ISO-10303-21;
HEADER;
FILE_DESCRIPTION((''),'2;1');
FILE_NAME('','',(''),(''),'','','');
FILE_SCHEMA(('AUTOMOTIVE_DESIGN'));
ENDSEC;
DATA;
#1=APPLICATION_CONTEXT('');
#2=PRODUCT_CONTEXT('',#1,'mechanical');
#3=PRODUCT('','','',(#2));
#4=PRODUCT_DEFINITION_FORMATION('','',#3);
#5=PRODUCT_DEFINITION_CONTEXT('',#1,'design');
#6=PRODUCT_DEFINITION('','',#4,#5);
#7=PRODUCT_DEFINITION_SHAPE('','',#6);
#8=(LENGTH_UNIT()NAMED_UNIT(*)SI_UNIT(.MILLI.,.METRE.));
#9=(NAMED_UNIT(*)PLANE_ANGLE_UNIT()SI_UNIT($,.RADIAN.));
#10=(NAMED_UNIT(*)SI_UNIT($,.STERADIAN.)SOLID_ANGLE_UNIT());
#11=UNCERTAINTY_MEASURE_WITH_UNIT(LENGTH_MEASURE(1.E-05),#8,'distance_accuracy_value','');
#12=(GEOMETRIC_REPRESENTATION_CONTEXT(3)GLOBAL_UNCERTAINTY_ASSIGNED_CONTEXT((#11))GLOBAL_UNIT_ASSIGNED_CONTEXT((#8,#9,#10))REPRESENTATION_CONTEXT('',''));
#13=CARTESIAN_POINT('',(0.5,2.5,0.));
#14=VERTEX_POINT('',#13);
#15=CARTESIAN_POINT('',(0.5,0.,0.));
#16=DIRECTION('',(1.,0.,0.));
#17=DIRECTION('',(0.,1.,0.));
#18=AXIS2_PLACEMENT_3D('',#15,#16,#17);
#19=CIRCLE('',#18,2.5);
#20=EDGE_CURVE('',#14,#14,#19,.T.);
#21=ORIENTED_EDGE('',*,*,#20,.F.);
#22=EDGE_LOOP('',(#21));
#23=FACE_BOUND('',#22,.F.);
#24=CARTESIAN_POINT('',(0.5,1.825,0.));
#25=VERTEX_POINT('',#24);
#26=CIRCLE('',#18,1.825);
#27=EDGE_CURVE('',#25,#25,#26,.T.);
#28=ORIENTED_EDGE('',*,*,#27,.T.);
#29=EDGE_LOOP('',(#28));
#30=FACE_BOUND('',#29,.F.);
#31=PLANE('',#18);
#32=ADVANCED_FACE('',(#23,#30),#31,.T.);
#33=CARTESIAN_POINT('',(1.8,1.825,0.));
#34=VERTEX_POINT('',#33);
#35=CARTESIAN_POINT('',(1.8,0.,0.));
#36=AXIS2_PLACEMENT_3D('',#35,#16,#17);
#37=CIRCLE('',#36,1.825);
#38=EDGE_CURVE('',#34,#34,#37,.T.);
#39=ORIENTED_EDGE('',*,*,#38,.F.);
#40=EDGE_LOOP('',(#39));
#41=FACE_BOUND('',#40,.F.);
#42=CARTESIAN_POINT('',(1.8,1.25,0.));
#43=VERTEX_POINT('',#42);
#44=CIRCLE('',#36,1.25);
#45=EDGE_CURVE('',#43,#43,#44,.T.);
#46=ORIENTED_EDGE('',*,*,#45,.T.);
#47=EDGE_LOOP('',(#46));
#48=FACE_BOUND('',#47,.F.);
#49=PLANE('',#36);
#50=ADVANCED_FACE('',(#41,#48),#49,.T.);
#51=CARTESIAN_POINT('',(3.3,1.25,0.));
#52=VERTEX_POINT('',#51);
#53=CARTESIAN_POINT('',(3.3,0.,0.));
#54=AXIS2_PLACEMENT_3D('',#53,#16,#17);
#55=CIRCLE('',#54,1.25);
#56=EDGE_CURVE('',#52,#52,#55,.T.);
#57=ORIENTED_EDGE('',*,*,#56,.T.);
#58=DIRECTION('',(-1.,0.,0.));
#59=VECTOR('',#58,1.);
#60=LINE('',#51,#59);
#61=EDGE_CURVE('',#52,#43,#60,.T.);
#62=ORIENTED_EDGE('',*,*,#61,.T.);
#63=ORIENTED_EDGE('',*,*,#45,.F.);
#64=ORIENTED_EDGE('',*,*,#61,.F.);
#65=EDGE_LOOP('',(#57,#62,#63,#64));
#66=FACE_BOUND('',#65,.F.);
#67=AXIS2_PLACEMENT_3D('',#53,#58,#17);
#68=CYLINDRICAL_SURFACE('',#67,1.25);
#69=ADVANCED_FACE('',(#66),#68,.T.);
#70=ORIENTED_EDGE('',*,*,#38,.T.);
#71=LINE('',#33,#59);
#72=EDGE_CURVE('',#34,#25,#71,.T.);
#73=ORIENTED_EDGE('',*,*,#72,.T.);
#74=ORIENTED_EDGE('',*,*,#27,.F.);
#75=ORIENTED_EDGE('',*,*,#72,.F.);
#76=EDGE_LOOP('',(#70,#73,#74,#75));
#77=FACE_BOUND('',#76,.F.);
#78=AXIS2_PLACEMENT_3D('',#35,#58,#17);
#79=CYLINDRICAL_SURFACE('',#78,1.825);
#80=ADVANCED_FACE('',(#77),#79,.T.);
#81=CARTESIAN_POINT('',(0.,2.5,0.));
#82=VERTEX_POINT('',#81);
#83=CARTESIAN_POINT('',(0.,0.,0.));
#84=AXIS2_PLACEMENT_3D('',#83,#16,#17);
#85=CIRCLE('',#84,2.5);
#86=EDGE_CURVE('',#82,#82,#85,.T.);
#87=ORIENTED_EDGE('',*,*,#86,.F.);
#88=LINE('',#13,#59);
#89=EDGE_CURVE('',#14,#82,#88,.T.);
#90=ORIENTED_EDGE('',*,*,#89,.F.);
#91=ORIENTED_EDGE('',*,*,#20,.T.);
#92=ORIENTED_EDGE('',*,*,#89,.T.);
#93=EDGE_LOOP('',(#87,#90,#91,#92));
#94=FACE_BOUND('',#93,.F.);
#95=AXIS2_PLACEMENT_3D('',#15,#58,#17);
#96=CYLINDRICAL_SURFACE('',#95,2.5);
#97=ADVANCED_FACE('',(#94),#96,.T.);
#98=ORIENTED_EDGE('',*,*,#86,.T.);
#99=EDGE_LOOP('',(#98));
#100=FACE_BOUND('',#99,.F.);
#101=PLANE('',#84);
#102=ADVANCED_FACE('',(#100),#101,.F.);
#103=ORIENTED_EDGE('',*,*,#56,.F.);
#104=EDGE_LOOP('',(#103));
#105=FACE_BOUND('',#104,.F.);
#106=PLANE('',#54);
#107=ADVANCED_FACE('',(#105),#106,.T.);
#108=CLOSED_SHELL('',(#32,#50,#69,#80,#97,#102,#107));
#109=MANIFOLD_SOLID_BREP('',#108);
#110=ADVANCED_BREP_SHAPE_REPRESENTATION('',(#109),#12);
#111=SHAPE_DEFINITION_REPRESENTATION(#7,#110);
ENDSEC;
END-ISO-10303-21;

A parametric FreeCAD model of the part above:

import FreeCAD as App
import Part
import Sketcher

V = App.Vector
Q = App.Units.Quantity

doc = App.newDocument("Part")
params = doc.addObject("Spreadsheet::Sheet", "Params")
for row, (alias, value) in enumerate([
    ("sketch1_width", "3.3 mm"),
    ("sketch1_width2", "0.5 mm"),
    ("sketch1_height", "2.5 mm"),
    ("sketch1_height2", "1.25 mm"),
    ("revolution_angle", "360 deg"),
], start=1):
    params.set(f"A{row}", alias)
    params.set(f"B{row}", "=" + value)
    params.setAlias(f"B{row}", alias)

body = doc.addObject("PartDesign::Body", "Body")

# Sketch on XY plane
sketch1 = doc.addObject("Sketcher::SketchObject", "Sketch")
body.addObject(sketch1)
sketch1.AttachmentSupport = (doc.XY_Plane, [""])
sketch1.MapMode = "FlatFace"
sketch1.addGeometry(Part.LineSegment(V(0, 2.5, 0), V(0, 0, 0)), False)
sketch1.addGeometry(Part.LineSegment(V(0, 0, 0), V(3.3, 0, 0)), False)
sketch1.addGeometry(Part.LineSegment(V(3.3, 0, 0), V(3.3, 1.2, 0)), False)
sketch1.addGeometry(Part.LineSegment(V(3.3, 1.2, 0), V(1.8, 1.2, 0)), False)
sketch1.addGeometry(Part.LineSegment(V(1.8, 1.2, 0), V(1.8, 1.8, 0)), False)
sketch1.addGeometry(Part.LineSegment(V(1.8, 1.8, 0), V(0.5, 1.8, 0)), False)
sketch1.addGeometry(Part.LineSegment(V(0.5, 1.8, 0), V(0.5, 2.5, 0)), False)
sketch1.addGeometry(Part.LineSegment(V(0.5, 2.5, 0), V(0, 2.5, 0)), False)
sketch1.addConstraint(Sketcher.Constraint("Coincident", 0, 2, 1, 1))
sketch1.addConstraint(Sketcher.Constraint("Coincident", 1, 2, 2, 1))
sketch1.addConstraint(Sketcher.Constraint("Coincident", 2, 2, 3, 1))
sketch1.addConstraint(Sketcher.Constraint("Coincident", 3, 2, 4, 1))
sketch1.addConstraint(Sketcher.Constraint("Coincident", 4, 2, 5, 1))
sketch1.addConstraint(Sketcher.Constraint("Coincident", 5, 2, 6, 1))
sketch1.addConstraint(Sketcher.Constraint("Coincident", 6, 2, 7, 1))
sketch1.addConstraint(Sketcher.Constraint("Coincident", 7, 2, 0, 1))
sketch1.addConstraint(Sketcher.Constraint("Vertical", 0))
sketch1.addConstraint(Sketcher.Constraint("Horizontal", 1))
sketch1.addConstraint(Sketcher.Constraint("Vertical", 2))
sketch1.addConstraint(Sketcher.Constraint("Horizontal", 3))
sketch1.addConstraint(Sketcher.Constraint("Vertical", 4))
sketch1.addConstraint(Sketcher.Constraint("Horizontal", 5))
sketch1.addConstraint(Sketcher.Constraint("Vertical", 6))
sketch1.addConstraint(Sketcher.Constraint("Horizontal", 7))
sketch1.addConstraint(Sketcher.Constraint("Coincident", 0, 2, -1, 1))
sketch1.addConstraint(Sketcher.Constraint("DistanceX", 1, 1, 1, 2, Q("3.3 mm")))
sketch1.addConstraint(Sketcher.Constraint("DistanceX", 7, 2, 7, 1, Q("0.5 mm")))
sketch1.addConstraint(Sketcher.Constraint("DistanceY", 0, 2, 0, 1, Q("2.5 mm")))
sketch1.addConstraint(Sketcher.Constraint("DistanceX", -1, 1, 3, 2, Q("1.8 mm")))
sketch1.addConstraint(Sketcher.Constraint("DistanceY", 2, 1, 2, 2, Q("1.25 mm")))
sketch1.addConstraint(Sketcher.Constraint("DistanceY", 4, 1, 4, 2, Q("0.575 mm")))
sketch1.setExpression("Constraints[17]", "Params.sketch1_width")
sketch1.setExpression("Constraints[18]", "Params.sketch1_width2")
sketch1.setExpression("Constraints[19]", "Params.sketch1_height")
sketch1.setExpression("Constraints[21]", "Params.sketch1_height2")
revolution = doc.addObject("PartDesign::Revolution", "Revolution")
body.addObject(revolution)
revolution.Profile = sketch1
revolution.ReferenceAxis = (sketch1, ["H_Axis"])
revolution.setExpression("Angle", "Params.revolution_angle")

doc.recompute()
